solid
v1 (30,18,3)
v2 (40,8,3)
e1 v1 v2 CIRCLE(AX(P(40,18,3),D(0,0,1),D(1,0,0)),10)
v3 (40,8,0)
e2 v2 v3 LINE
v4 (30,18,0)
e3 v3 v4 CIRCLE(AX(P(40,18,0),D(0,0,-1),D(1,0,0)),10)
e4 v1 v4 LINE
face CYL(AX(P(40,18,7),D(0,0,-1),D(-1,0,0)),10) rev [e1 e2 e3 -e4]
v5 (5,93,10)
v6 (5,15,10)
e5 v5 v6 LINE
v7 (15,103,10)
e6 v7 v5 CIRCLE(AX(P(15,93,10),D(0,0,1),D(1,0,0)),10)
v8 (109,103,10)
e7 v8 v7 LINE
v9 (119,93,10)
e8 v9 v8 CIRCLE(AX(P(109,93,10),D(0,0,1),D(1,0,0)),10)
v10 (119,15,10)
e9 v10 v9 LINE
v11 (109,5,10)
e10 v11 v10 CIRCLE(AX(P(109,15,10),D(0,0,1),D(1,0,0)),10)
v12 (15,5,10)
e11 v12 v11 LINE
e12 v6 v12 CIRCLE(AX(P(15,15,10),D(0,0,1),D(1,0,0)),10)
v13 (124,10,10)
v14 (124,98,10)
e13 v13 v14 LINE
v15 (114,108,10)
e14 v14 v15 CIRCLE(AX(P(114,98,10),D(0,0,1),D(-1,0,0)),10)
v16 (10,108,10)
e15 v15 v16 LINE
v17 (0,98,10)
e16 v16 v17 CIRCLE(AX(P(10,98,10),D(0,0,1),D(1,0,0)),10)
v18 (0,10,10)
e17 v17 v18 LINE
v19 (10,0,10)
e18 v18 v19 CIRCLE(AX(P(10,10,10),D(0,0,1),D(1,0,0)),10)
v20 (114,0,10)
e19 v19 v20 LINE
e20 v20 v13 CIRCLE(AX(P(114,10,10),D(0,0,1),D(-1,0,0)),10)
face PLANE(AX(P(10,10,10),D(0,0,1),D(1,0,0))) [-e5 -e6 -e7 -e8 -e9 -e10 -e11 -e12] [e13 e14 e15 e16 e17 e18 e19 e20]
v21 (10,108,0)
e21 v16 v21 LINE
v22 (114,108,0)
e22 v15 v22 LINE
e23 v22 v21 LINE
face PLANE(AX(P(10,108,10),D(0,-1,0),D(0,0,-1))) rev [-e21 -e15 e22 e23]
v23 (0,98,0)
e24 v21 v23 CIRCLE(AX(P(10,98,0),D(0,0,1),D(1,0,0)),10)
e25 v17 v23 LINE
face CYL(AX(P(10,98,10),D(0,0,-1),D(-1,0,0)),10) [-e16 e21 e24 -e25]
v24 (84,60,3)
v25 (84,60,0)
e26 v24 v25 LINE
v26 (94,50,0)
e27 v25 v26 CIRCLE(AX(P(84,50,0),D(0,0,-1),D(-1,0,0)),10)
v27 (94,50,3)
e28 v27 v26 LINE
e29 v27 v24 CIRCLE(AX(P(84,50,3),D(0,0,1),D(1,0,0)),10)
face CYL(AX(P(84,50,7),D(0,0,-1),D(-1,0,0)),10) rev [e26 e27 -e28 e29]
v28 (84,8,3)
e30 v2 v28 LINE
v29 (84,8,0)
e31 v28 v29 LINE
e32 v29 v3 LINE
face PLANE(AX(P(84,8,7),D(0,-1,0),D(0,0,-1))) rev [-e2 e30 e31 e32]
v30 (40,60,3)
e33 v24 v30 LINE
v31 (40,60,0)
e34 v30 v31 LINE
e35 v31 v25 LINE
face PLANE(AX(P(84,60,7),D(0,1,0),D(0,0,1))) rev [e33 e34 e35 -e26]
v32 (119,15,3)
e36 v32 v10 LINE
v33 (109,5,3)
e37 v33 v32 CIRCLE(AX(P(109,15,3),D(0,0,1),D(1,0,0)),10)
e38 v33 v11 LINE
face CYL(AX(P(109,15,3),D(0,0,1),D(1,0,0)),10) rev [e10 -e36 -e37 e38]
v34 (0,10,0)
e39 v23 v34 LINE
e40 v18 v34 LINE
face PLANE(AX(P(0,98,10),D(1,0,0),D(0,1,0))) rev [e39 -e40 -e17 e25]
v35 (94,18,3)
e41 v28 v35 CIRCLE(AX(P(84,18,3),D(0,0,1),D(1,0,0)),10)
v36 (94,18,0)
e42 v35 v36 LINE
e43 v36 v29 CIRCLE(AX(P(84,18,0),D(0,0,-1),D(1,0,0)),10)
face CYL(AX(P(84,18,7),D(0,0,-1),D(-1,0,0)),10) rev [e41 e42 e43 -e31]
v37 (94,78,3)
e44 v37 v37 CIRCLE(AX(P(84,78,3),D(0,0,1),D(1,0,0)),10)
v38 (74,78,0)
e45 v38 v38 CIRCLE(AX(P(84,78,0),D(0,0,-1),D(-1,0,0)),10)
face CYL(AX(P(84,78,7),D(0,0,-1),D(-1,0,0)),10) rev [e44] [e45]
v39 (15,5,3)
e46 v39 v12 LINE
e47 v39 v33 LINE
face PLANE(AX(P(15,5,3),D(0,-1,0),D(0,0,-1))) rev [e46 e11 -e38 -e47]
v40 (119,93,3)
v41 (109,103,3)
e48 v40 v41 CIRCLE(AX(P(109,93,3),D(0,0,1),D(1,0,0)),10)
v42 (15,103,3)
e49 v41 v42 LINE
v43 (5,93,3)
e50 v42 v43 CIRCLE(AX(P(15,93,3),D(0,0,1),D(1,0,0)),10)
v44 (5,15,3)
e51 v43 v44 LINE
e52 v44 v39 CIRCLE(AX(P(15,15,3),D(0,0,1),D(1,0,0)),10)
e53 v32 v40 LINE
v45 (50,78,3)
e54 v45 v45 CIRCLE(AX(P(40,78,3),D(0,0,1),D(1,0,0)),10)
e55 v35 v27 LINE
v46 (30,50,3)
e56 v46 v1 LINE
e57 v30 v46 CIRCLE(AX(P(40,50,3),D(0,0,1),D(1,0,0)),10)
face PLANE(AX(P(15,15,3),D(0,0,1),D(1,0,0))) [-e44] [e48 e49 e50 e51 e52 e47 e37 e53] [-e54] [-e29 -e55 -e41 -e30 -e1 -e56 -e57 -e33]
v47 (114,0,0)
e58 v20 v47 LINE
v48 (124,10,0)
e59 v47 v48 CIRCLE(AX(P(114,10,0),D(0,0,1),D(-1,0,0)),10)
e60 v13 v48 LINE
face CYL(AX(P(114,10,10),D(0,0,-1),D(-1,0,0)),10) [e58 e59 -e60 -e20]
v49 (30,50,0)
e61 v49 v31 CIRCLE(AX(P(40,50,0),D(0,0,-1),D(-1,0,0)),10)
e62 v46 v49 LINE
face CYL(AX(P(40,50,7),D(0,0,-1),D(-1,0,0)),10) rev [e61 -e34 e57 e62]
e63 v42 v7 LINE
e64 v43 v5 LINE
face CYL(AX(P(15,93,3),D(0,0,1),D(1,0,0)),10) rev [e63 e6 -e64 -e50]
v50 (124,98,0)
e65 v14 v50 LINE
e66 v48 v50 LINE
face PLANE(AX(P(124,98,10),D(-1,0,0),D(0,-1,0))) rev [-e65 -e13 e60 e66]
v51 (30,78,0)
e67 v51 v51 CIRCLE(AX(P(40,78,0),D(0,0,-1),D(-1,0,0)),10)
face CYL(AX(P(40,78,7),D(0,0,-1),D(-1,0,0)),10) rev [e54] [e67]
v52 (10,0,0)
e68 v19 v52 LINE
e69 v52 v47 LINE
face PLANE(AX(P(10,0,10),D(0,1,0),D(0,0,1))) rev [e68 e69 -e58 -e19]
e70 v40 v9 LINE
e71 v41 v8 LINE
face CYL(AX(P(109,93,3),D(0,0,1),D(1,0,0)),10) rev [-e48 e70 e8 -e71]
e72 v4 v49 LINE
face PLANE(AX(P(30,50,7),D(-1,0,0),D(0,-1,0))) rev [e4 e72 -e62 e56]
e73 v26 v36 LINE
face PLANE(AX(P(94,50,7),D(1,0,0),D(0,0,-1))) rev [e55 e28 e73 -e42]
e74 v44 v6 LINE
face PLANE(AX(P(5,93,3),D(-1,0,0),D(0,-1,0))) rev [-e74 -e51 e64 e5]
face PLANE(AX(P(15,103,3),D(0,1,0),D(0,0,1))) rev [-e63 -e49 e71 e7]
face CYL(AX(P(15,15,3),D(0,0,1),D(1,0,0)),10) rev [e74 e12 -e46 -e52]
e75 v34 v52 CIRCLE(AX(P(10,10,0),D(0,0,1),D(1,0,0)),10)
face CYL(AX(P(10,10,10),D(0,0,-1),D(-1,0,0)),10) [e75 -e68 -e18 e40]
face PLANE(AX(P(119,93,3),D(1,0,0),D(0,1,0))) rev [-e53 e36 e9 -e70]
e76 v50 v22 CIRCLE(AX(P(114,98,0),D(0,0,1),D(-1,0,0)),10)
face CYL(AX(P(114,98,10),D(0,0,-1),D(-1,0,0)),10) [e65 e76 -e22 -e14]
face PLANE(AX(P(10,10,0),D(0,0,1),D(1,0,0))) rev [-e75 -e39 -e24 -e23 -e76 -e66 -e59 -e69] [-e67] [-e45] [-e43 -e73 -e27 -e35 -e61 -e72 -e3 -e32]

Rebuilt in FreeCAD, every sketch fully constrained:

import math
import FreeCAD as App
import Part
import Sketcher
from FreeCAD import Vector
Q = App.Units.Quantity

doc = App.newDocument("Part")
params = doc.addObject("Spreadsheet::Sheet", "Params")
for row, (alias, value) in enumerate([
    ("sketch1_radius", "10 mm"),
    ("sketch1_width", "104 mm"),
    ("sketch1_height", "88 mm"),
    ("pad1_length", "10 mm"),
    ("sketch2_radius", "10 mm"),
    ("sketch2_width", "94 mm"),
    ("sketch2_height", "78 mm"),
    ("pocket1_length", "7 mm"),
    ("sketch3_radius", "10 mm"),
    ("sketch3_width", "44 mm"),
    ("sketch3_height", "32 mm"),
    ("pocket2_length", "7 mm"),
    ("sketch4_diameter", "20 mm"),
    ("pocket3_length", "7 mm"),
], start=1):
    params.set(f"A{row}", alias)
    params.set(f"B{row}", "=" + value)
    params.setAlias(f"B{row}", alias)

body = doc.addObject("PartDesign::Body", "Body")

# Sketch on XY plane
sketch1 = body.newObject("Sketcher::SketchObject", "Sketch")
sketch1.AttachmentSupport = (doc.getObject("XY_Plane"), [""])
sketch1.MapMode = "FlatFace"
sketch1.addGeometry(Part.LineSegment(Vector(114, 108, 0), Vector(10, 108, 0)), False)
sketch1.addGeometry(Part.ArcOfCircle(Part.Circle(Vector(10, 98, 0), Vector(0, 0, 1), 10), math.radians(90), math.radians(180)), False)
sketch1.addGeometry(Part.LineSegment(Vector(0, 98, 0), Vector(0, 10, 0)), False)
sketch1.addGeometry(Part.ArcOfCircle(Part.Circle(Vector(10, 10, 0), Vector(0, 0, 1), 10), math.radians(180), math.radians(270)), False)
sketch1.addGeometry(Part.LineSegment(Vector(10, 0, 0), Vector(114, 0, 0)), False)
sketch1.addGeometry(Part.ArcOfCircle(Part.Circle(Vector(114, 10, 0), Vector(0, 0, 1), 10), math.radians(-90), math.radians(0)), False)
sketch1.addGeometry(Part.LineSegment(Vector(124, 10, 0), Vector(124, 98, 0)), False)
sketch1.addGeometry(Part.ArcOfCircle(Part.Circle(Vector(114, 98, 0), Vector(0, 0, 1), 10), math.radians(0), math.radians(90)), False)
sketch1.addConstraint(Sketcher.Constraint("Tangent", 0, 2, 1, 1))
sketch1.addConstraint(Sketcher.Constraint("Tangent", 1, 2, 2, 1))
sketch1.addConstraint(Sketcher.Constraint("Tangent", 2, 2, 3, 1))
sketch1.addConstraint(Sketcher.Constraint("Tangent", 3, 2, 4, 1))
sketch1.addConstraint(Sketcher.Constraint("Tangent", 4, 2, 5, 1))
sketch1.addConstraint(Sketcher.Constraint("Tangent", 5, 2, 6, 1))
sketch1.addConstraint(Sketcher.Constraint("Tangent", 6, 2, 7, 1))
sketch1.addConstraint(Sketcher.Constraint("Tangent", 7, 2, 0, 1))
sketch1.addConstraint(Sketcher.Constraint("Horizontal", 0))
sketch1.addConstraint(Sketcher.Constraint("Vertical", 2))
sketch1.addConstraint(Sketcher.Constraint("Horizontal", 4))
sketch1.addConstraint(Sketcher.Constraint("Vertical", 6))
sketch1.addConstraint(Sketcher.Constraint("Equal", 1, 3))
sketch1.addConstraint(Sketcher.Constraint("Equal", 3, 5))
sketch1.addConstraint(Sketcher.Constraint("Equal", 5, 7))
sketch1.addConstraint(Sketcher.Constraint("PointOnObject", 1, 2, -2))
sketch1.addConstraint(Sketcher.Constraint("PointOnObject", 3, 2, -1))
sketch1.addConstraint(Sketcher.Constraint("Radius", 1, Q("10 mm")))
sketch1.addConstraint(Sketcher.Constraint("DistanceX", 0, 2, 0, 1, Q("104 mm")))
sketch1.addConstraint(Sketcher.Constraint("DistanceY", 2, 2, 2, 1, Q("88 mm")))
sketch1.setExpression("Constraints[17]", "Params.sketch1_radius")
sketch1.setExpression("Constraints[18]", "Params.sketch1_width")
sketch1.setExpression("Constraints[19]", "Params.sketch1_height")
pad1 = body.newObject("PartDesign::Pad", "Pad")
pad1.Profile = sketch1
pad1.setExpression("Length", "Params.pad1_length")

# Sketch on XY plane
sketch2 = body.newObject("Sketcher::SketchObject", "Sketch001")
sketch2.AttachmentSupport = (doc.getObject("XY_Plane"), [""])
sketch2.MapMode = "FlatFace"
sketch2.AttachmentOffset = App.Placement(Vector(0, 0, 10), App.Rotation())
sketch2.addGeometry(Part.LineSegment(Vector(109, 103, 0), Vector(15, 103, 0)), False)
sketch2.addGeometry(Part.ArcOfCircle(Part.Circle(Vector(15, 93, 0), Vector(0, 0, 1), 10), math.radians(90), math.radians(180)), False)
sketch2.addGeometry(Part.LineSegment(Vector(5, 93, 0), Vector(5, 15, 0)), False)
sketch2.addGeometry(Part.ArcOfCircle(Part.Circle(Vector(15, 15, 0), Vector(0, 0, 1), 10), math.radians(180), math.radians(270)), False)
sketch2.addGeometry(Part.LineSegment(Vector(15, 5, 0), Vector(109, 5, 0)), False)
sketch2.addGeometry(Part.ArcOfCircle(Part.Circle(Vector(109, 15, 0), Vector(0, 0, 1), 10), math.radians(-90), math.radians(0)), False)
sketch2.addGeometry(Part.LineSegment(Vector(119, 15, 0), Vector(119, 93, 0)), False)
sketch2.addGeometry(Part.ArcOfCircle(Part.Circle(Vector(109, 93, 0), Vector(0, 0, 1), 10), math.radians(0), math.radians(90)), False)
sketch2.addConstraint(Sketcher.Constraint("Tangent", 0, 2, 1, 1))
sketch2.addConstraint(Sketcher.Constraint("Tangent", 1, 2, 2, 1))
sketch2.addConstraint(Sketcher.Constraint("Tangent", 2, 2, 3, 1))
sketch2.addConstraint(Sketcher.Constraint("Tangent", 3, 2, 4, 1))
sketch2.addConstraint(Sketcher.Constraint("Tangent", 4, 2, 5, 1))
sketch2.addConstraint(Sketcher.Constraint("Tangent", 5, 2, 6, 1))
sketch2.addConstraint(Sketcher.Constraint("Tangent", 6, 2, 7, 1))
sketch2.addConstraint(Sketcher.Constraint("Tangent", 7, 2, 0, 1))
sketch2.addConstraint(Sketcher.Constraint("Horizontal", 0))
sketch2.addConstraint(Sketcher.Constraint("Vertical", 2))
sketch2.addConstraint(Sketcher.Constraint("Horizontal", 4))
sketch2.addConstraint(Sketcher.Constraint("Vertical", 6))
sketch2.addConstraint(Sketcher.Constraint("Equal", 1, 3))
sketch2.addConstraint(Sketcher.Constraint("Equal", 3, 5))
sketch2.addConstraint(Sketcher.Constraint("Equal", 5, 7))
sketch2.addConstraint(Sketcher.Constraint("Radius", 1, Q("10 mm")))
sketch2.addConstraint(Sketcher.Constraint("DistanceX", 0, 2, 0, 1, Q("94 mm")))
sketch2.addConstraint(Sketcher.Constraint("DistanceY", 2, 2, 2, 1, Q("78 mm")))
sketch2.addConstraint(Sketcher.Constraint("DistanceX", -1, 1, 1, 3, Q("15 mm")))
sketch2.addConstraint(Sketcher.Constraint("DistanceY", -1, 1, 1, 3, Q("93 mm")))
sketch2.setExpression("Constraints[15]", "Params.sketch2_radius")
sketch2.setExpression("Constraints[16]", "Params.sketch2_width")
sketch2.setExpression("Constraints[17]", "Params.sketch2_height")
pocket1 = body.newObject("PartDesign::Pocket", "Pocket")
pocket1.Profile = sketch2
pocket1.setExpression("Length", "Params.pocket1_length")

# Sketch on XY plane
sketch3 = body.newObject("Sketcher::SketchObject", "Sketch002")
sketch3.AttachmentSupport = (doc.getObject("XY_Plane"), [""])
sketch3.MapMode = "FlatFace"
sketch3.addGeometry(Part.LineSegment(Vector(40, 60, 0), Vector(84, 60, 0)), False)
sketch3.addGeometry(Part.ArcOfCircle(Part.Circle(Vector(84, 50, 0), Vector(0, 0, 1), 10), math.radians(0), math.radians(90)), False)
sketch3.addGeometry(Part.LineSegment(Vector(94, 50, 0), Vector(94, 18, 0)), False)
sketch3.addGeometry(Part.ArcOfCircle(Part.Circle(Vector(84, 18, 0), Vector(0, 0, 1), 10), math.radians(-90), math.radians(0)), False)
sketch3.addGeometry(Part.LineSegment(Vector(84, 8, 0), Vector(40, 8, 0)), False)
sketch3.addGeometry(Part.ArcOfCircle(Part.Circle(Vector(40, 18, 0), Vector(0, 0, 1), 10), math.radians(180), math.radians(270)), False)
sketch3.addGeometry(Part.LineSegment(Vector(30, 18, 0), Vector(30, 50, 0)), False)
sketch3.addGeometry(Part.ArcOfCircle(Part.Circle(Vector(40, 50, 0), Vector(0, 0, 1), 10), math.radians(90), math.radians(180)), False)
sketch3.addConstraint(Sketcher.Constraint("Tangent", 0, 2, 1, 2))
sketch3.addConstraint(Sketcher.Constraint("Tangent", 1, 1, 2, 1))
sketch3.addConstraint(Sketcher.Constraint("Tangent", 2, 2, 3, 2))
sketch3.addConstraint(Sketcher.Constraint("Tangent", 3, 1, 4, 1))
sketch3.addConstraint(Sketcher.Constraint("Tangent", 4, 2, 5, 2))
sketch3.addConstraint(Sketcher.Constraint("Tangent", 5, 1, 6, 1))
sketch3.addConstraint(Sketcher.Constraint("Tangent", 6, 2, 7, 2))
sketch3.addConstraint(Sketcher.Constraint("Tangent", 7, 1, 0, 1))
sketch3.addConstraint(Sketcher.Constraint("Horizontal", 0))
sketch3.addConstraint(Sketcher.Constraint("Vertical", 2))
sketch3.addConstraint(Sketcher.Constraint("Horizontal", 4))
sketch3.addConstraint(Sketcher.Constraint("Vertical", 6))
sketch3.addConstraint(Sketcher.Constraint("Equal", 1, 3))
sketch3.addConstraint(Sketcher.Constraint("Equal", 3, 5))
sketch3.addConstraint(Sketcher.Constraint("Equal", 5, 7))
sketch3.addConstraint(Sketcher.Constraint("Radius", 1, Q("10 mm")))
sketch3.addConstraint(Sketcher.Constraint("DistanceX", 0, 1, 0, 2, Q("44 mm")))
sketch3.addConstraint(Sketcher.Constraint("DistanceY", 2, 2, 2, 1, Q("32 mm")))
sketch3.addConstraint(Sketcher.Constraint("DistanceX", -1, 1, 1, 3, Q("84 mm")))
sketch3.addConstraint(Sketcher.Constraint("DistanceY", -1, 1, 1, 3, Q("50 mm")))
sketch3.setExpression("Constraints[15]", "Params.sketch3_radius")
sketch3.setExpression("Constraints[16]", "Params.sketch3_width")
sketch3.setExpression("Constraints[17]", "Params.sketch3_height")
pocket2 = body.newObject("PartDesign::Pocket", "Pocket001")
pocket2.Profile = sketch3
pocket2.setExpression("Length", "Params.pocket2_length")
pocket2.Reversed = True

# Sketch on XY plane
sketch4 = body.newObject("Sketcher::SketchObject", "Sketch003")
sketch4.AttachmentSupport = (doc.getObject("XY_Plane"), [""])
sketch4.MapMode = "FlatFace"
sketch4.addGeometry(Part.Circle(Vector(84, 78, 0), Vector(0, 0, 1), 10), False)
sketch4.addGeometry(Part.Circle(Vector(40, 78, 0), Vector(0, 0, 1), 10), False)
sketch4.addConstraint(Sketcher.Constraint("Equal", 0, 1))
sketch4.addConstraint(Sketcher.Constraint("Horizontal", 0, 3, 1, 3))
sketch4.addConstraint(Sketcher.Constraint("Diameter", 0, Q("20 mm")))
sketch4.addConstraint(Sketcher.Constraint("DistanceX", -1, 1, 0, 3, Q("84 mm")))
sketch4.addConstraint(Sketcher.Constraint("DistanceY", -1, 1, 0, 3, Q("78 mm")))
sketch4.addConstraint(Sketcher.Constraint("DistanceX", -1, 1, 1, 3, Q("40 mm")))
sketch4.setExpression("Constraints[2]", "Params.sketch4_diameter")
pocket3 = body.newObject("PartDesign::Pocket", "Pocket002")
pocket3.Profile = sketch4
pocket3.setExpression("Length", "Params.pocket3_length")
pocket3.Reversed = True

doc.recompute()
